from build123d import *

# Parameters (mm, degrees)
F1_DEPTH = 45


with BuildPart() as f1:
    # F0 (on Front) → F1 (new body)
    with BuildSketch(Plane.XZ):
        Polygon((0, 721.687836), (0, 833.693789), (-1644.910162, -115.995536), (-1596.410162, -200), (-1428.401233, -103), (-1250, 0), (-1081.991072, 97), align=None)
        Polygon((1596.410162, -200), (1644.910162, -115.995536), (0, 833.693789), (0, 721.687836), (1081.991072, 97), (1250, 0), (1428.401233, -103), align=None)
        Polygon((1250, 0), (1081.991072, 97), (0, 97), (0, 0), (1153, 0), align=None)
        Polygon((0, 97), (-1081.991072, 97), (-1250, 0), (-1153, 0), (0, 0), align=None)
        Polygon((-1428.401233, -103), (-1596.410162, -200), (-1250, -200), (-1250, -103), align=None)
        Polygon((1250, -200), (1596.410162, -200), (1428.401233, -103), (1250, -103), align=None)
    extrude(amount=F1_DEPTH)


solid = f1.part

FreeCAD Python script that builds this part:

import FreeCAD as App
import Part
import Sketcher
Q = App.Units.Quantity

doc = App.newDocument("Part")
body = doc.addObject("PartDesign::Body", "Body")

# Sketch on XZ plane
sketch1 = body.newObject("Sketcher::SketchObject", "Sketch")
sketch1.AttachmentSupport = (doc.getObject("XZ_Plane"), [""])
sketch1.MapMode = "FlatFace"
sketch1.addGeometry([
    Part.LineSegment(App.Vector(1250, 0, 0), App.Vector(1428, -103, 0)),  # 0
    Part.LineSegment(App.Vector(1428, -103, 0), App.Vector(1250, -103, 0)),  # 1
    Part.LineSegment(App.Vector(1250, -103, 0), App.Vector(1250, -200, 0)),  # 2
    Part.LineSegment(App.Vector(1250, -200, 0), App.Vector(1596, -200, 0)),  # 3
    Part.LineSegment(App.Vector(1596, -200, 0), App.Vector(1645, -116, 0)),  # 4
    Part.LineSegment(App.Vector(1645, -116, 0), App.Vector(0, 834, 0)),  # 5
    Part.LineSegment(App.Vector(0, 834, 0), App.Vector(-1645, -116, 0)),  # 6
    Part.LineSegment(App.Vector(-1645, -116, 0), App.Vector(-1596, -200, 0)),  # 7
    Part.LineSegment(App.Vector(-1596, -200, 0), App.Vector(-1250, -200, 0)),  # 8
    Part.LineSegment(App.Vector(-1250, -200, 0), App.Vector(-1250, -103, 0)),  # 9
    Part.LineSegment(App.Vector(-1250, -103, 0), App.Vector(-1428, -103, 0)),  # 10
    Part.LineSegment(App.Vector(-1428, -103, 0), App.Vector(-1250, 0, 0)),  # 11
    Part.LineSegment(App.Vector(-1250, 0, 0), App.Vector(1250, 0, 0)),  # 12
    Part.LineSegment(App.Vector(-1082, 97, 0), App.Vector(0, 722, 0)),  # 13
    Part.LineSegment(App.Vector(0, 722, 0), App.Vector(1082, 97, 0)),  # 14
    Part.LineSegment(App.Vector(1082, 97, 0), App.Vector(-1082, 97, 0)),  # 15
], False)
sketch1.addConstraint([
    Sketcher.Constraint("Coincident", 0, 2, 1, 1),
    Sketcher.Constraint("Coincident", 1, 2, 2, 1),
    Sketcher.Constraint("Coincident", 2, 2, 3, 1),
    Sketcher.Constraint("Coincident", 3, 2, 4, 1),
    Sketcher.Constraint("Coincident", 4, 2, 5, 1),
    Sketcher.Constraint("Coincident", 5, 2, 6, 1),
    Sketcher.Constraint("Coincident", 6, 2, 7, 1),
    Sketcher.Constraint("Coincident", 7, 2, 8, 1),
    Sketcher.Constraint("Coincident", 8, 2, 9, 1),
    Sketcher.Constraint("Coincident", 9, 2, 10, 1),
    Sketcher.Constraint("Coincident", 10, 2, 11, 1),
    Sketcher.Constraint("Coincident", 11, 2, 12, 1),
    Sketcher.Constraint("Coincident", 12, 2, 0, 1),
    Sketcher.Constraint("Coincident", 13, 2, 14, 1),
    Sketcher.Constraint("Coincident", 14, 2, 15, 1),
    Sketcher.Constraint("Coincident", 15, 2, 13, 1),
    Sketcher.Constraint("Horizontal", 1),
    Sketcher.Constraint("Vertical", 2),
    Sketcher.Constraint("Horizontal", 3),
    Sketcher.Constraint("Horizontal", 8),
    Sketcher.Constraint("Vertical", 9),
    Sketcher.Constraint("Horizontal", 10),
    Sketcher.Constraint("Horizontal", 12),
    Sketcher.Constraint("Horizontal", 15),
    Sketcher.Constraint("Symmetric", 11, 2, 12, 2, -1, 1),
    Sketcher.Constraint("Symmetric", 4, 2, 6, 2, -2),
    Sketcher.Constraint("Symmetric", 3, 2, 7, 2, -2),
    Sketcher.Constraint("Symmetric", 1, 2, 9, 2, -2),
    Sketcher.Constraint("PointOnObject", 5, 2, -2),
    Sketcher.Constraint("PointOnObject", 13, 2, -2),
    Sketcher.Constraint("Perpendicular", 0, 4),
    Sketcher.Constraint("Perpendicular", 4, 5),
    Sketcher.Constraint("Perpendicular", 7, 11),
    Sketcher.Constraint("Parallel", 11, 13),
    Sketcher.Constraint("Parallel", 5, 14),
    Sketcher.Constraint("Vertical", 9, 2, 11, 2),
    Sketcher.Constraint("DistanceX", 12, 1, 12, 2, Q("2500 mm")),
    Sketcher.Constraint("DistanceY", 2, 2, 2, 1, Q("97 mm")),
    Sketcher.Constraint("Angle", 0, Q("-30 deg")),
    Sketcher.Constraint("Distance", 0, Q("206 mm")),
    Sketcher.Constraint("Distance", 4, Q("97 mm")),
    Sketcher.Constraint("DistanceY", -1, 1, 14, 2, Q("97 mm")),
    Sketcher.Constraint("DistanceX", 3, 1, 3, 2, Q("346.410162 mm")),
    Sketcher.Constraint("DistanceX", 15, 2, 15, 1, Q("2163.982144 mm")),
])
pad1 = body.newObject("PartDesign::Pad", "Pad")
pad1.Profile = sketch1
pad1.Length = 45

doc.recompute()
